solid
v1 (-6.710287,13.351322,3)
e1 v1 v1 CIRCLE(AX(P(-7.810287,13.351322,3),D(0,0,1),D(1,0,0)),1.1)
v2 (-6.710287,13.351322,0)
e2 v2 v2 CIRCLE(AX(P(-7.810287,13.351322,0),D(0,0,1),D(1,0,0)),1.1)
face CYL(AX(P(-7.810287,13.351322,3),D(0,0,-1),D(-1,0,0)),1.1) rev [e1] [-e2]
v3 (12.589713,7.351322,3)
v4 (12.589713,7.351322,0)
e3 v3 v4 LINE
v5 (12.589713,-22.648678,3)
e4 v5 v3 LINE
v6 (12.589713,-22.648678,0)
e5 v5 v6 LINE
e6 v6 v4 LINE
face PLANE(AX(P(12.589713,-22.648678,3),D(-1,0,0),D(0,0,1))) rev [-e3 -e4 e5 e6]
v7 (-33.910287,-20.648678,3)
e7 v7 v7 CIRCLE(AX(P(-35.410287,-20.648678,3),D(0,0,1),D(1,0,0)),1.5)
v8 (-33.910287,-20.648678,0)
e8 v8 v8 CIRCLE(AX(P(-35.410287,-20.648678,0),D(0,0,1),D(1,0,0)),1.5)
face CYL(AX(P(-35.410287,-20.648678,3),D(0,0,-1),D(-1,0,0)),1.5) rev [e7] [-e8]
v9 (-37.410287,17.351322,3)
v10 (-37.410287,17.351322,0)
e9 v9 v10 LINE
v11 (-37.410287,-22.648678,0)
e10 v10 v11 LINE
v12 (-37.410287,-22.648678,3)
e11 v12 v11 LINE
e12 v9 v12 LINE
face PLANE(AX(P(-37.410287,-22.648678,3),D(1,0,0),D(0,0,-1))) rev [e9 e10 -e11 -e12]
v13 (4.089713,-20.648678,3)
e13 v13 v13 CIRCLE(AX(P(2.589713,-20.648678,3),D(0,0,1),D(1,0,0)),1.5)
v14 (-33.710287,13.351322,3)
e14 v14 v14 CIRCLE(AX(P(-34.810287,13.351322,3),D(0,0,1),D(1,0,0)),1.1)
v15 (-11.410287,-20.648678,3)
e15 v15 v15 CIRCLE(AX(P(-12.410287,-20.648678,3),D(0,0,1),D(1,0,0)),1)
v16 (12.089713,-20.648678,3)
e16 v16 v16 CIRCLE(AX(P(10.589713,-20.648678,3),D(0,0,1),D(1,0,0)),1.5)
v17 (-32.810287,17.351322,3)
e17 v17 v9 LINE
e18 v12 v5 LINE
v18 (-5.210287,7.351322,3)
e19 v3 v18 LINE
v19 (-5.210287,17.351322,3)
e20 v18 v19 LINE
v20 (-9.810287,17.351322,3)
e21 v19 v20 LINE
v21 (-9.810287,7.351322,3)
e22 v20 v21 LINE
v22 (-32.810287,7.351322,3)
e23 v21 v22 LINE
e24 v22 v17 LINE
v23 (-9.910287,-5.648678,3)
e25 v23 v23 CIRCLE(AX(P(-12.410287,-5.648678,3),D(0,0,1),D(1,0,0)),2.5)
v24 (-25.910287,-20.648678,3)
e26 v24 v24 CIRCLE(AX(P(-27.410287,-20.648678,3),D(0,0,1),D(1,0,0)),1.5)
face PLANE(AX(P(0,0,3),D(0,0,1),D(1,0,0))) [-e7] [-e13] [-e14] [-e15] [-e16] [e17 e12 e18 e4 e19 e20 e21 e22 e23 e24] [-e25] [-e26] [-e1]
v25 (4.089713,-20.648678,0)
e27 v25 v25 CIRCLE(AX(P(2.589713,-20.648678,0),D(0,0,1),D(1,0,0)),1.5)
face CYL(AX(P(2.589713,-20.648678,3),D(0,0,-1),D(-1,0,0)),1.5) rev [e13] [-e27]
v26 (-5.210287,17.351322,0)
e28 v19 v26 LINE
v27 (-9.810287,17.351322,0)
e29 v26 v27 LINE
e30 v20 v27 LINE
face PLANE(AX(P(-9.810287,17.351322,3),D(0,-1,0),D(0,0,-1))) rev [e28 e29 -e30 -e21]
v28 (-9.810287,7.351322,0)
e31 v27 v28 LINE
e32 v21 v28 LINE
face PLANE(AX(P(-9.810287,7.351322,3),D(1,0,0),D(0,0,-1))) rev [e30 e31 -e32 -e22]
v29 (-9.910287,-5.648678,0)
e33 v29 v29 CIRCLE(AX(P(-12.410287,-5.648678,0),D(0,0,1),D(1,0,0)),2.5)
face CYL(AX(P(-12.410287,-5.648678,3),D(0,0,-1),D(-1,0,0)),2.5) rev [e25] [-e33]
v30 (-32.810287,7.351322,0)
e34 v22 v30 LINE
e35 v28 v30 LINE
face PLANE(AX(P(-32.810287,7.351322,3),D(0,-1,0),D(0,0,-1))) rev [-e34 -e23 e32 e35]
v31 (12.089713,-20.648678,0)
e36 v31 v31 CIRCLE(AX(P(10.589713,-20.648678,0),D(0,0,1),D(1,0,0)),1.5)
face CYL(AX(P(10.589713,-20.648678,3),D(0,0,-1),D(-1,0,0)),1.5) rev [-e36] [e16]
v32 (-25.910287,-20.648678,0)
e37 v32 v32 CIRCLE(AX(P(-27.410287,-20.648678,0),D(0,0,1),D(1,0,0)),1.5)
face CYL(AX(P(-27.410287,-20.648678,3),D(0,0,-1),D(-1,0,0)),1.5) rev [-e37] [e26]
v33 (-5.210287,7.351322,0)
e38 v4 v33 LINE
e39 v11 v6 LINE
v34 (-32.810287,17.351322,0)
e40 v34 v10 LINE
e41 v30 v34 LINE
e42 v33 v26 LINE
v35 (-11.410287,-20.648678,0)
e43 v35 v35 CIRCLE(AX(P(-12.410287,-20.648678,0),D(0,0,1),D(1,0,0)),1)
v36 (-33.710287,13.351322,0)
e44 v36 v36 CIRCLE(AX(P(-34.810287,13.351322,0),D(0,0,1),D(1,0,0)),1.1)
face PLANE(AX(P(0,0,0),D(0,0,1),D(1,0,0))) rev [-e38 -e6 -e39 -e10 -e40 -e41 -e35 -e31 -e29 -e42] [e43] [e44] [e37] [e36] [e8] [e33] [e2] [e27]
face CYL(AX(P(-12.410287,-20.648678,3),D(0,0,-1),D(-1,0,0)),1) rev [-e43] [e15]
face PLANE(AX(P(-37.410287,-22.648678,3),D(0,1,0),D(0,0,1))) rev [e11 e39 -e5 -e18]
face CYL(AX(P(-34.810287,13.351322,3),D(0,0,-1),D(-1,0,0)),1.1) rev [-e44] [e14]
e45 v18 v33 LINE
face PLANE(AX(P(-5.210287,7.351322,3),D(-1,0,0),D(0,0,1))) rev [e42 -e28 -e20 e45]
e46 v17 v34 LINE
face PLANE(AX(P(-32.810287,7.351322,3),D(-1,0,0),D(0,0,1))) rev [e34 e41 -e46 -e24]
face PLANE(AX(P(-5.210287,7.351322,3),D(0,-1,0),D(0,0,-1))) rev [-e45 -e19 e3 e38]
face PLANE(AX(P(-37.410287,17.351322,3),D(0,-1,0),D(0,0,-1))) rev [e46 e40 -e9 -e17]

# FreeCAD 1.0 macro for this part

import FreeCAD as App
import Part
import Sketcher

V = App.Vector
Q = App.Units.Quantity


def add_polygon(sketch, points):
    """Adds a closed chain of lines whose ends are joined by coincident constraints."""
    first, n = sketch.GeometryCount, len(points)
    for a, b in zip(points, points[1:] + points[:1]):
        sketch.addGeometry(Part.LineSegment(App.Vector(*a, 0), App.Vector(*b, 0)), False)
    for i in range(n):
        sketch.addConstraint(Sketcher.Constraint("Coincident", first + i, 2, first + (i + 1) % n, 1))

doc = App.newDocument("Part")
body = doc.addObject("PartDesign::Body", "Body")

# Sketch on XY plane
sketch1 = body.newObject("Sketcher::SketchObject", "Sketch")
sketch1.AttachmentSupport = (doc.getObject("XY_Plane"), [""])
sketch1.MapMode = "FlatFace"
add_polygon(sketch1, [(-37.4, -22.6), (12.6, -22.6), (12.6, 7.4), (-5.2, 7.4), (-5.2, 17.4), (-9.8, 17.4), (-9.8, 7.4), (-32.8, 7.4), (-32.8, 17.4), (-37.4, 17.4)])  # lines 0-9
sketch1.addGeometry(Part.Circle(V(-35.4, -20.6, 0), V(0, 0, 1), 1.5), False)  # 10
sketch1.addGeometry(Part.Circle(V(-27.4, -20.6, 0), V(0, 0, 1), 1.5), False)  # 11
sketch1.addGeometry(Part.Circle(V(-12.4, -20.6, 0), V(0, 0, 1), 1), False)  # 12
sketch1.addGeometry(Part.Circle(V(-12.4, -5.6, 0), V(0, 0, 1), 2.5), False)  # 13
sketch1.addGeometry(Part.Circle(V(2.6, -20.6, 0), V(0, 0, 1), 1.5), False)  # 14
sketch1.addGeometry(Part.Circle(V(10.6, -20.6, 0), V(0, 0, 1), 1.5), False)  # 15
sketch1.addGeometry(Part.Circle(V(-34.8, 13.4, 0), V(0, 0, 1), 1.1), False)  # 16
sketch1.addGeometry(Part.Circle(V(-7.8, 13.4, 0), V(0, 0, 1), 1.1), False)  # 17
sketch1.addConstraint([
    Sketcher.Constraint("Horizontal", 0),
    Sketcher.Constraint("Vertical", 1),
    Sketcher.Constraint("Horizontal", 2),
    Sketcher.Constraint("Vertical", 3),
    Sketcher.Constraint("Horizontal", 4),
    Sketcher.Constraint("Vertical", 5),
    Sketcher.Constraint("Horizontal", 6),
    Sketcher.Constraint("Vertical", 7),
    Sketcher.Constraint("Horizontal", 8),
    Sketcher.Constraint("Vertical", 9),
    Sketcher.Constraint("Equal", 10, 11),
    Sketcher.Constraint("Equal", 11, 14),
    Sketcher.Constraint("Equal", 14, 15),
    Sketcher.Constraint("Equal", 16, 17),
    Sketcher.Constraint("Horizontal", 10, 3, 11, 3),
    Sketcher.Constraint("Horizontal", 11, 3, 12, 3),
    Sketcher.Constraint("Horizontal", 12, 3, 14, 3),
    Sketcher.Constraint("Horizontal", 14, 3, 15, 3),
    Sketcher.Constraint("Horizontal", 16, 3, 17, 3),
    Sketcher.Constraint("Horizontal", 2, 2, 5, 2),
    Sketcher.Constraint("Horizontal", 4, 2, 7, 2),
    Sketcher.Constraint("Vertical", 12, 3, 13, 3),
    Sketcher.Constraint("Equal", 4, 8),
    Sketcher.Constraint("Diameter", 10, Q("3 mm")),
    Sketcher.Constraint("Diameter", 12, Q("2 mm")),
    Sketcher.Constraint("Diameter", 13, Q("5 mm")),
    Sketcher.Constraint("Diameter", 16, Q("2.2 mm")),
    Sketcher.Constraint("DistanceX", 0, 1, 0, 2, Q("50 mm")),
    Sketcher.Constraint("DistanceX", 6, 2, 6, 1, Q("23 mm")),
    Sketcher.Constraint("DistanceY", 1, 1, 1, 2, Q("30 mm")),
    Sketcher.Constraint("DistanceY", 3, 1, 3, 2, Q("10 mm")),
    Sketcher.Constraint("DistanceX", 2, 2, 2, 1, Q("17.8 mm")),
    Sketcher.Constraint("DistanceX", 10, 3, 11, 3, Q("8 mm")),
    Sketcher.Constraint("DistanceX", 11, 3, 12, 3, Q("15 mm")),
    Sketcher.Constraint("DistanceY", 12, 3, 13, 3, Q("15 mm")),
    Sketcher.Constraint("DistanceX", 12, 3, 14, 3, Q("15 mm")),
    Sketcher.Constraint("DistanceX", 14, 3, 15, 3, Q("8 mm")),
    Sketcher.Constraint("DistanceY", 13, 3, 16, 3, Q("19 mm")),
    Sketcher.Constraint("DistanceX", 16, 3, 17, 3, Q("27 mm")),
    Sketcher.Constraint("DistanceX", 15, 3, 0, 2, Q("2 mm")),
    Sketcher.Constraint("DistanceY", 0, 2, 15, 3, Q("2 mm")),
    Sketcher.Constraint("DistanceX", 4, 2, 17, 3, Q("2 mm")),
    Sketcher.Constraint("DistanceX", 10, 3, -1, 1, Q("35.410287 mm")),
    Sketcher.Constraint("DistanceY", 10, 3, -1, 1, Q("20.648678 mm")),
])
pad1 = body.newObject("PartDesign::Pad", "Pad")
pad1.Profile = sketch1
pad1.Length = 3

doc.recompute()
